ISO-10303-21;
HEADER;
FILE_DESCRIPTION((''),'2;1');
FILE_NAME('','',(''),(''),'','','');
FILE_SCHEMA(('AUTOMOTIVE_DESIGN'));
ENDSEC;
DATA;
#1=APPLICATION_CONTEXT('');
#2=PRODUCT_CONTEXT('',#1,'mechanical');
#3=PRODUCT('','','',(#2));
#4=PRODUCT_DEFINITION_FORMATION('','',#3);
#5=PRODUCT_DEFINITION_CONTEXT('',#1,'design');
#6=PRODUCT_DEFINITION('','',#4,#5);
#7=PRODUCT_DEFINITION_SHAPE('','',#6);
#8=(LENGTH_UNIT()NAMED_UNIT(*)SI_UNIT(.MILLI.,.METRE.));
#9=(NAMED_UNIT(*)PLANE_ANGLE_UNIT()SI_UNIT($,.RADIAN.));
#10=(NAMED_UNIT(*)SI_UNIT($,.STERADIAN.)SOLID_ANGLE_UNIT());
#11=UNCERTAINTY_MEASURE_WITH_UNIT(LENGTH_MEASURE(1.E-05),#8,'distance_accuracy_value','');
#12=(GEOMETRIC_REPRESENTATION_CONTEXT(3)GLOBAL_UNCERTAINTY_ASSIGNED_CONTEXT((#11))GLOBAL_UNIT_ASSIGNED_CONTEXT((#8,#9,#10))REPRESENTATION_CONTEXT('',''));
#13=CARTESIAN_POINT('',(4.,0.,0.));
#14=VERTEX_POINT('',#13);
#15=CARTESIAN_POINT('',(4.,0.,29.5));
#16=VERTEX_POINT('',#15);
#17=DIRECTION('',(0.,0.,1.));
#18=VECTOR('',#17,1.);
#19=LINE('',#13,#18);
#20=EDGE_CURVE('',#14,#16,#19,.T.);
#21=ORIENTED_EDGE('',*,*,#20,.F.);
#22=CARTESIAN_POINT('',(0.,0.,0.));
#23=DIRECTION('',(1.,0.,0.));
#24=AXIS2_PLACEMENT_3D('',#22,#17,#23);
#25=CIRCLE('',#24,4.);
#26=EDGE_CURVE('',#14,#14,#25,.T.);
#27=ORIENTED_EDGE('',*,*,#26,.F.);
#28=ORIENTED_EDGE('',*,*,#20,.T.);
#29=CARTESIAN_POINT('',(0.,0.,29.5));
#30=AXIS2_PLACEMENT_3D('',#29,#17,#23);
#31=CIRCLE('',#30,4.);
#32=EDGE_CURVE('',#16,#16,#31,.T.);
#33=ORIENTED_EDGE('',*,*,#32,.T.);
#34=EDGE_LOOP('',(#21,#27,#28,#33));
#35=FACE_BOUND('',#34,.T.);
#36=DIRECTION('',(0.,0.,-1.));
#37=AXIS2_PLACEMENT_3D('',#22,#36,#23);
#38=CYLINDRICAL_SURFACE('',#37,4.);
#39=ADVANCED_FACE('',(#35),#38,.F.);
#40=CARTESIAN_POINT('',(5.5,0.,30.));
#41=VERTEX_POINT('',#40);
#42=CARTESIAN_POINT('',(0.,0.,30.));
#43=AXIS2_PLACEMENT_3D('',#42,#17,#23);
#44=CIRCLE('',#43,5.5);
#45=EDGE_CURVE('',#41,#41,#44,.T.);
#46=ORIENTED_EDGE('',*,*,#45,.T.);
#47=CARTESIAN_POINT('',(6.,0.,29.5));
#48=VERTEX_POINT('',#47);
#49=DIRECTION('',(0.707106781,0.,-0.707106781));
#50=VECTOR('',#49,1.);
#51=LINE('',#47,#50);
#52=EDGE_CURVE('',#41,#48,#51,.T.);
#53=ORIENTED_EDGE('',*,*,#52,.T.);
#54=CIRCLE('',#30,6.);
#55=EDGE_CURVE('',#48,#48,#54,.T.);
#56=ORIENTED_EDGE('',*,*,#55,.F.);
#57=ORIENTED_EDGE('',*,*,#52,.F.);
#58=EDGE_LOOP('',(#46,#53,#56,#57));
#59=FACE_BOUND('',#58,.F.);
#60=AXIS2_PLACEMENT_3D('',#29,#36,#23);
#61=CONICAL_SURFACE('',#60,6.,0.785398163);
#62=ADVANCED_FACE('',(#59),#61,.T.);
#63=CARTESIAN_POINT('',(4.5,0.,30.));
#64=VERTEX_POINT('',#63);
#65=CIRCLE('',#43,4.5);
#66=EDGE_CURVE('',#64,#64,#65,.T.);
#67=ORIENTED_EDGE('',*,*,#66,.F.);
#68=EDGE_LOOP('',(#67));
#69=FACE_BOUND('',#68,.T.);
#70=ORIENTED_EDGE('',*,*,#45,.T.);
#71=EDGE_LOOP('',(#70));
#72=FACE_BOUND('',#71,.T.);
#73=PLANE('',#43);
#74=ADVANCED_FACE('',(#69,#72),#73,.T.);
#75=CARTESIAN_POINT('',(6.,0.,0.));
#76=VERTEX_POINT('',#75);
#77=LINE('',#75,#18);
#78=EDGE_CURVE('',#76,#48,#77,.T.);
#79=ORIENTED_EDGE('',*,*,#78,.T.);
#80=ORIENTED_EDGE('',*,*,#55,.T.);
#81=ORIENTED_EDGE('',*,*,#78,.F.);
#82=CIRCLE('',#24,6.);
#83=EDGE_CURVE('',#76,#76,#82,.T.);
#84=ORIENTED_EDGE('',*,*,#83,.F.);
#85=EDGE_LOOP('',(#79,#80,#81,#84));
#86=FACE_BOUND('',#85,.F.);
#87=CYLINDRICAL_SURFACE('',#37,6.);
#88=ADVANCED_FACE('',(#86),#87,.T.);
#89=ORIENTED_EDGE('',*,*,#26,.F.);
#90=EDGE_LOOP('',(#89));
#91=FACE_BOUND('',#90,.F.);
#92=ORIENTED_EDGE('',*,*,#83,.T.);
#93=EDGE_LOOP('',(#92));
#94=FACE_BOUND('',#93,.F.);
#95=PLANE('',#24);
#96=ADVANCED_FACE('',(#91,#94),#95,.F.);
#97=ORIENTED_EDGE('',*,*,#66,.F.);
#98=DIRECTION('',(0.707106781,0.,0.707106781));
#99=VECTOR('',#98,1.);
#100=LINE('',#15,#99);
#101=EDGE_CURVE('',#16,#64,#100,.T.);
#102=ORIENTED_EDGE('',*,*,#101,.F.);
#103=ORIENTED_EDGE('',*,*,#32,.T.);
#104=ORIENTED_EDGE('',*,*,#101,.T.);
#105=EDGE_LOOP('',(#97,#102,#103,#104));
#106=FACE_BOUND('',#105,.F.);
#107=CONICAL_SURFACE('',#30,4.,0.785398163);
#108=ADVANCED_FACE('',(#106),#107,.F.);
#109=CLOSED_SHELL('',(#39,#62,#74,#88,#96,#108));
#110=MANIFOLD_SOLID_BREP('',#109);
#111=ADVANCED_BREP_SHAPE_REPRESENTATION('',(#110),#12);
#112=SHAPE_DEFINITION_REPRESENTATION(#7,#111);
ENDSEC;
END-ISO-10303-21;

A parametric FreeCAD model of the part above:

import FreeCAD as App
import Part
import Sketcher


def edges_at(feature, points):
    """Names of the edges that pass closest to the given points."""
    edges = feature.Shape.Edges
    near = lambda p: min(range(len(edges)), key=lambda i: edges[i].distToShape(Part.Vertex(*p))[0])
    return sorted({f"Edge{near(p) + 1}" for p in points})

doc = App.newDocument("Part")
body = doc.addObject("PartDesign::Body", "Body")

sketch1 = body.newObject("Sketcher::SketchObject", "Sketch")
sketch1.AttachmentSupport = (doc.getObject("XY_Plane"), [""])
sketch1.MapMode = "FlatFace"
sketch1.addGeometry([
    Part.Circle(App.Vector(0, 0, 0), App.Vector(0, 0, 1), 6),
    Part.Circle(App.Vector(0, 0, 0), App.Vector(0, 0, 1), 4),
], False)
sketch1.addConstraint([
    Sketcher.Constraint("Coincident", 0, 3, -1, 1),
    Sketcher.Constraint("Coincident", 1, 3, -1, 1),
    Sketcher.Constraint("Diameter", 0, 12.0),
    Sketcher.Constraint("Diameter", 1, 8.0),
])
pad1 = body.newObject("PartDesign::Pad", "Pad")
pad1.Profile = sketch1
pad1.Length = 30
doc.recompute()

chamfer = body.newObject("PartDesign::Chamfer", "Chamfer")
chamfer.Base = (pad1, edges_at(pad1, [(-4, 0, 30)]))
chamfer.Size = 0.5
doc.recompute()

chamfer2 = body.newObject("PartDesign::Chamfer", "Chamfer001")
chamfer2.Base = (chamfer, edges_at(chamfer, [(-6, 0, 30)]))
chamfer2.Size = 0.5

doc.recompute()
